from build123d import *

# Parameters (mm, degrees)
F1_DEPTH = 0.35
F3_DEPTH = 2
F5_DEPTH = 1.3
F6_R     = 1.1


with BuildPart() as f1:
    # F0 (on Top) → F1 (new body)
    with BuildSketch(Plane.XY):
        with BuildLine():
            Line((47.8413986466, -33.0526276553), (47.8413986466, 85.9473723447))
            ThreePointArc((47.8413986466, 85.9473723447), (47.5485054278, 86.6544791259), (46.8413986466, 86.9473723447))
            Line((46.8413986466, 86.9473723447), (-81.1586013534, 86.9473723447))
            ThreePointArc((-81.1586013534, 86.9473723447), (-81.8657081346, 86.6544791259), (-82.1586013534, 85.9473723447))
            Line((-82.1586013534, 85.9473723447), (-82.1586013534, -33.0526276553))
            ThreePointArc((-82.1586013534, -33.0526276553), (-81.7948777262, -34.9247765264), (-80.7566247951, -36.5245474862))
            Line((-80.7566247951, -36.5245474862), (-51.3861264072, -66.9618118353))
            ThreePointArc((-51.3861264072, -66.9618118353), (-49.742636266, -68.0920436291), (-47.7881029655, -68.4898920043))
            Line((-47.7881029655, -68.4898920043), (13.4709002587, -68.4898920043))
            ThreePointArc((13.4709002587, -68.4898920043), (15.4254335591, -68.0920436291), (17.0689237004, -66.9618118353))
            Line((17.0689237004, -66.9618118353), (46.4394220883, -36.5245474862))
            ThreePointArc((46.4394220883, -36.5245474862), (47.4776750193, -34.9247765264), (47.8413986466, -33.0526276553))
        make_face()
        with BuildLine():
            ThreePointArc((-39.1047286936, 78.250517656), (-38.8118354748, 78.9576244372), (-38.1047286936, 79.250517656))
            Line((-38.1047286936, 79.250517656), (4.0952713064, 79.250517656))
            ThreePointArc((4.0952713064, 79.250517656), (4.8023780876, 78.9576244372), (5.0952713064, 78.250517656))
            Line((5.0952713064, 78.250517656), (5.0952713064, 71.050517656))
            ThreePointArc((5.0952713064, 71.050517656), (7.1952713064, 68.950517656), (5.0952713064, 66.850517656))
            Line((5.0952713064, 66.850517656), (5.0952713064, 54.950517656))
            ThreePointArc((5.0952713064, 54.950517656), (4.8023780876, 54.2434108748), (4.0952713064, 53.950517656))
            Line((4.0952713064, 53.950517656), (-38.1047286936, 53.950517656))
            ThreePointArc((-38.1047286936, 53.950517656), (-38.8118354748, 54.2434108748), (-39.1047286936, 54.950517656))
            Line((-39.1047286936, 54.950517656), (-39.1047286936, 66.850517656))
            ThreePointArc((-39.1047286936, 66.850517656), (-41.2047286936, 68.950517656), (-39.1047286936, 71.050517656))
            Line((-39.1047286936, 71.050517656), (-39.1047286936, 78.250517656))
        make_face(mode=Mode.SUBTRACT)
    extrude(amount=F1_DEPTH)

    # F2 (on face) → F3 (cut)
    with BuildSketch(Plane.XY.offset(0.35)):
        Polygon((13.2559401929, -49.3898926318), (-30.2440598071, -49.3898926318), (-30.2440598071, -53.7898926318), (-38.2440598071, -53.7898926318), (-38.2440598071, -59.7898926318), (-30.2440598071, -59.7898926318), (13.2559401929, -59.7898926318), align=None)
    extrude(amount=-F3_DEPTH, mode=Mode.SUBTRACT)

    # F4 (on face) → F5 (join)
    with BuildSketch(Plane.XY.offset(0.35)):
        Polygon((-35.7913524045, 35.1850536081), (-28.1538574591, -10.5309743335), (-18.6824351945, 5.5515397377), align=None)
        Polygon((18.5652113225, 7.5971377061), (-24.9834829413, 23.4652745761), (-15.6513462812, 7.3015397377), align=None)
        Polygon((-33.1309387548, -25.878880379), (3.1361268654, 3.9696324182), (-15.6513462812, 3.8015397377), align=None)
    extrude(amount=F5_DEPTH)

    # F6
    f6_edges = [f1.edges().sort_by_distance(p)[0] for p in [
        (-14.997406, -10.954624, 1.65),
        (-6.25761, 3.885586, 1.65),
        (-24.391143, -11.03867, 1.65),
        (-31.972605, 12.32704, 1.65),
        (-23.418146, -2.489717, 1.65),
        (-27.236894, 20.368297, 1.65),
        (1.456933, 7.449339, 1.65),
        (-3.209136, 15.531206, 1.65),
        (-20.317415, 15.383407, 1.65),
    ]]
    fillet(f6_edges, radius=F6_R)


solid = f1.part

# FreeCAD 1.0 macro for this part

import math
import FreeCAD as App
import Part
import Sketcher
Q = App.Units.Quantity


def edges_at(feature, points):
    """Names of the edges that pass closest to the given points."""
    edges = feature.Shape.Edges
    near = lambda p: min(range(len(edges)), key=lambda i: edges[i].distToShape(Part.Vertex(*p))[0])
    return sorted({f"Edge{near(p) + 1}" for p in points})

doc = App.newDocument("Part")
body = doc.addObject("PartDesign::Body", "Body")

# Sketch on XY plane
sketch1 = doc.addObject("Sketcher::SketchObject", "Sketch")
body.addObject(sketch1)
sketch1.AttachmentSupport = (doc.XY_Plane, [""])
sketch1.MapMode = "FlatFace"
sketch1.addGeometry(Part.LineSegment(App.Vector(47.8, -33.1, 0), App.Vector(47.8, 85.9, 0)), False)
sketch1.addGeometry(Part.ArcOfCircle(Part.Circle(App.Vector(46.8, 85.9, 0), App.Vector(0, 0, 1), 1), math.radians(0), math.radians(90)), False)
sketch1.addGeometry(Part.LineSegment(App.Vector(46.8, 86.9, 0), App.Vector(-81.2, 86.9, 0)), False)
sketch1.addGeometry(Part.ArcOfCircle(Part.Circle(App.Vector(-81.2, 85.9, 0), App.Vector(0, 0, 1), 1), math.radians(90), math.radians(180)), False)
sketch1.addGeometry(Part.LineSegment(App.Vector(-82.2, 85.9, 0), App.Vector(-82.2, -33.1, 0)), False)
sketch1.addGeometry(Part.ArcOfCircle(Part.Circle(App.Vector(-77.2, -33.1, 0), App.Vector(0, 0, 1), 5), math.radians(180), math.radians(224)), False)
sketch1.addGeometry(Part.LineSegment(App.Vector(-80.8, -36.5, 0), App.Vector(-51.4, -67, 0)), False)
sketch1.addGeometry(Part.ArcOfCircle(Part.Circle(App.Vector(-47.8, -63.5, 0), App.Vector(0, 0, 1), 5), math.radians(-136), math.radians(-90)), False)
sketch1.addGeometry(Part.LineSegment(App.Vector(-47.8, -68.5, 0), App.Vector(13.5, -68.5, 0)), False)
sketch1.addGeometry(Part.ArcOfCircle(Part.Circle(App.Vector(13.5, -63.5, 0), App.Vector(0, 0, 1), 5), math.radians(-90), math.radians(-44)), False)
sketch1.addGeometry(Part.LineSegment(App.Vector(17.1, -67, 0), App.Vector(46.4, -36.5, 0)), False)
sketch1.addGeometry(Part.ArcOfCircle(Part.Circle(App.Vector(42.8, -33.1, 0), App.Vector(0, 0, 1), 5), math.radians(-44), math.radians(0)), False)
sketch1.addGeometry(Part.LineSegment(App.Vector(-39.1, 71.1, 0), App.Vector(-39.1, 78.3, 0)), False)
sketch1.addGeometry(Part.ArcOfCircle(Part.Circle(App.Vector(-38.1, 78.3, 0), App.Vector(0, 0, 1), 1), math.radians(90), math.radians(180)), False)
sketch1.addGeometry(Part.LineSegment(App.Vector(-38.1, 79.3, 0), App.Vector(4.1, 79.3, 0)), False)
sketch1.addGeometry(Part.ArcOfCircle(Part.Circle(App.Vector(4.1, 78.3, 0), App.Vector(0, 0, 1), 1), math.radians(0), math.radians(90)), False)
sketch1.addGeometry(Part.LineSegment(App.Vector(5.1, 78.3, 0), App.Vector(5.1, 71.1, 0)), False)
sketch1.addGeometry(Part.ArcOfCircle(Part.Circle(App.Vector(5.1, 69, 0), App.Vector(0, 0, 1), 2.1), math.radians(-90), math.radians(90)), False)
sketch1.addGeometry(Part.LineSegment(App.Vector(5.1, 66.9, 0), App.Vector(5.1, 55, 0)), False)
sketch1.addGeometry(Part.ArcOfCircle(Part.Circle(App.Vector(4.1, 55, 0), App.Vector(0, 0, 1), 1), math.radians(-90), math.radians(0)), False)
sketch1.addGeometry(Part.LineSegment(App.Vector(4.1, 54, 0), App.Vector(-38.1, 54, 0)), False)
sketch1.addGeometry(Part.ArcOfCircle(Part.Circle(App.Vector(-38.1, 55, 0), App.Vector(0, 0, 1), 1), math.radians(180), math.radians(270)), False)
sketch1.addGeometry(Part.LineSegment(App.Vector(-39.1, 55, 0), App.Vector(-39.1, 66.9, 0)), False)
sketch1.addGeometry(Part.ArcOfCircle(Part.Circle(App.Vector(-39.1, 69, 0), App.Vector(0, 0, 1), 2.1), math.radians(90), math.radians(270)), False)
sketch1.addConstraint(Sketcher.Constraint("Tangent", 0, 2, 1, 1))
sketch1.addConstraint(Sketcher.Constraint("Tangent", 1, 2, 2, 1))
sketch1.addConstraint(Sketcher.Constraint("Tangent", 2, 2, 3, 1))
sketch1.addConstraint(Sketcher.Constraint("Tangent", 3, 2, 4, 1))
sketch1.addConstraint(Sketcher.Constraint("Tangent", 4, 2, 5, 1))
sketch1.addConstraint(Sketcher.Constraint("Tangent", 5, 2, 6, 1))
sketch1.addConstraint(Sketcher.Constraint("Tangent", 6, 2, 7, 1))
sketch1.addConstraint(Sketcher.Constraint("Tangent", 7, 2, 8, 1))
sketch1.addConstraint(Sketcher.Constraint("Tangent", 8, 2, 9, 1))
sketch1.addConstraint(Sketcher.Constraint("Tangent", 9, 2, 10, 1))
sketch1.addConstraint(Sketcher.Constraint("Tangent", 10, 2, 11, 1))
sketch1.addConstraint(Sketcher.Constraint("Tangent", 11, 2, 0, 1))
sketch1.addConstraint(Sketcher.Constraint("Tangent", 12, 2, 13, 2))
sketch1.addConstraint(Sketcher.Constraint("Tangent", 13, 1, 14, 1))
sketch1.addConstraint(Sketcher.Constraint("Tangent", 14, 2, 15, 2))
sketch1.addConstraint(Sketcher.Constraint("Tangent", 15, 1, 16, 1))
sketch1.addConstraint(Sketcher.Constraint("Coincident", 16, 2, 17, 2))
sketch1.addConstraint(Sketcher.Constraint("Coincident", 17, 1, 18, 1))
sketch1.addConstraint(Sketcher.Constraint("Tangent", 18, 2, 19, 2))
sketch1.addConstraint(Sketcher.Constraint("Tangent", 19, 1, 20, 1))
sketch1.addConstraint(Sketcher.Constraint("Tangent", 20, 2, 21, 2))
sketch1.addConstraint(Sketcher.Constraint("Tangent", 21, 1, 22, 1))
sketch1.addConstraint(Sketcher.Constraint("Coincident", 22, 2, 23, 2))
sketch1.addConstraint(Sketcher.Constraint("Coincident", 23, 1, 12, 1))
sketch1.addConstraint(Sketcher.Constraint("Vertical", 0))
sketch1.addConstraint(Sketcher.Constraint("Horizontal", 2))
sketch1.addConstraint(Sketcher.Constraint("Vertical", 4))
sketch1.addConstraint(Sketcher.Constraint("Horizontal", 8))
sketch1.addConstraint(Sketcher.Constraint("Vertical", 12))
sketch1.addConstraint(Sketcher.Constraint("Horizontal", 14))
sketch1.addConstraint(Sketcher.Constraint("Vertical", 16))
sketch1.addConstraint(Sketcher.Constraint("Vertical", 18))
sketch1.addConstraint(Sketcher.Constraint("Horizontal", 20))
sketch1.addConstraint(Sketcher.Constraint("Vertical", 22))
sketch1.addConstraint(Sketcher.Constraint("Equal", 1, 3))
sketch1.addConstraint(Sketcher.Constraint("Equal", 5, 7))
sketch1.addConstraint(Sketcher.Constraint("Equal", 7, 9))
sketch1.addConstraint(Sketcher.Constraint("Equal", 9, 11))
sketch1.addConstraint(Sketcher.Constraint("Equal", 3, 13))
sketch1.addConstraint(Sketcher.Constraint("Equal", 13, 15))
sketch1.addConstraint(Sketcher.Constraint("Equal", 15, 19))
sketch1.addConstraint(Sketcher.Constraint("Equal", 19, 21))
sketch1.addConstraint(Sketcher.Constraint("Equal", 17, 23))
sketch1.addConstraint(Sketcher.Constraint("Horizontal", 5, 3, 11, 3))
sketch1.addConstraint(Sketcher.Constraint("Horizontal", 17, 3, 23, 3))
sketch1.addConstraint(Sketcher.Constraint("Horizontal", 6, 2, 9, 2))
sketch1.addConstraint(Sketcher.Constraint("Vertical", 15, 3, 19, 3))
sketch1.addConstraint(Sketcher.Constraint("Vertical", 13, 3, 21, 3))
sketch1.addConstraint(Sketcher.Constraint("Vertical", 23, 3, 12, 2))
sketch1.addConstraint(Sketcher.Constraint("Vertical", 17, 3, 15, 1))
sketch1.addConstraint(Sketcher.Constraint("Radius", 1, Q("1 mm")))
sketch1.addConstraint(Sketcher.Constraint("Radius", 5, Q("5 mm")))
sketch1.addConstraint(Sketcher.Constraint("Radius", 17, Q("2.1 mm")))
sketch1.addConstraint(Sketcher.Constraint("DistanceX", 2, 2, 2, 1, Q("128 mm")))
sketch1.addConstraint(Sketcher.Constraint("DistanceY", 0, 1, 0, 2, Q("119 mm")))
sketch1.addConstraint(Sketcher.Constraint("DistanceX", 14, 1, 14, 2, Q("42.2 mm")))
sketch1.addConstraint(Sketcher.Constraint("DistanceY", 12, 1, 12, 2, Q("7.2 mm")))
sketch1.addConstraint(Sketcher.Constraint("DistanceY", 18, 2, 18, 1, Q("11.9 mm")))
sketch1.addConstraint(Sketcher.Constraint("Distance", 6, Q("42.297201 mm")))
sketch1.addConstraint(Sketcher.Constraint("DistanceX", -1, 1, 1, 3, Q("46.841399 mm")))
sketch1.addConstraint(Sketcher.Constraint("DistanceX", -1, 1, 9, 3, Q("13.4709 mm")))
sketch1.addConstraint(Sketcher.Constraint("DistanceX", 13, 3, -1, 1, Q("38.104729 mm")))
sketch1.addConstraint(Sketcher.Constraint("DistanceY", 6, 2, -1, 1, Q("66.961812 mm")))
sketch1.addConstraint(Sketcher.Constraint("DistanceY", 7, 3, 13, 3, Q("141.74041 mm")))
pad1 = doc.addObject("PartDesign::Pad", "Pad")
body.addObject(pad1)
pad1.Profile = sketch1
pad1.Length = 0.35

# Sketch on XY plane
sketch2 = doc.addObject("Sketcher::SketchObject", "Sketch001")
body.addObject(sketch2)
sketch2.AttachmentSupport = (doc.XY_Plane, [""])
sketch2.MapMode = "FlatFace"
sketch2.AttachmentOffset = App.Placement(App.Vector(0, 0, 0.35), App.Rotation())
sketch2.addGeometry(Part.LineSegment(App.Vector(13.3, -49.4, 0), App.Vector(-30.2, -49.4, 0)), False)
sketch2.addGeometry(Part.LineSegment(App.Vector(-30.2, -49.4, 0), App.Vector(-30.2, -53.8, 0)), False)
sketch2.addGeometry(Part.LineSegment(App.Vector(-30.2, -53.8, 0), App.Vector(-38.2, -53.8, 0)), False)
sketch2.addGeometry(Part.LineSegment(App.Vector(-38.2, -53.8, 0), App.Vector(-38.2, -59.8, 0)), False)
sketch2.addGeometry(Part.LineSegment(App.Vector(-38.2, -59.8, 0), App.Vector(13.3, -59.8, 0)), False)
sketch2.addGeometry(Part.LineSegment(App.Vector(13.3, -59.8, 0), App.Vector(13.3, -49.4, 0)), False)
sketch2.addConstraint(Sketcher.Constraint("Coincident", 0, 2, 1, 1))
sketch2.addConstraint(Sketcher.Constraint("Coincident", 1, 2, 2, 1))
sketch2.addConstraint(Sketcher.Constraint("Coincident", 2, 2, 3, 1))
sketch2.addConstraint(Sketcher.Constraint("Coincident", 3, 2, 4, 1))
sketch2.addConstraint(Sketcher.Constraint("Coincident", 4, 2, 5, 1))
sketch2.addConstraint(Sketcher.Constraint("Coincident", 5, 2, 0, 1))
sketch2.addConstraint(Sketcher.Constraint("Horizontal", 0))
sketch2.addConstraint(Sketcher.Constraint("Vertical", 1))
sketch2.addConstraint(Sketcher.Constraint("Horizontal", 2))
sketch2.addConstraint(Sketcher.Constraint("Vertical", 3))
sketch2.addConstraint(Sketcher.Constraint("Horizontal", 4))
sketch2.addConstraint(Sketcher.Constraint("Vertical", 5))
sketch2.addConstraint(Sketcher.Constraint("DistanceX", 2, 2, 2, 1, Q("8 mm")))
sketch2.addConstraint(Sketcher.Constraint("DistanceY", 3, 2, 3, 1, Q("6 mm")))
sketch2.addConstraint(Sketcher.Constraint("DistanceX", 0, 2, 0, 1, Q("43.5 mm")))
sketch2.addConstraint(Sketcher.Constraint("DistanceY", 1, 2, 1, 1, Q("4.4 mm")))
sketch2.addConstraint(Sketcher.Constraint("DistanceX", 0, 2, -1, 1, Q("30.24406 mm")))
sketch2.addConstraint(Sketcher.Constraint("DistanceY", 0, 2, -1, 1, Q("49.389893 mm")))
pocket1 = doc.addObject("PartDesign::Pocket", "Pocket")
body.addObject(pocket1)
pocket1.Profile = sketch2
pocket1.Length = 2

# Sketch on XY plane
sketch3 = doc.addObject("Sketcher::SketchObject", "Sketch002")
body.addObject(sketch3)
sketch3.AttachmentSupport = (doc.XY_Plane, [""])
sketch3.MapMode = "FlatFace"
sketch3.AttachmentOffset = App.Placement(App.Vector(0, 0, 0.35), App.Rotation())
sketch3.addGeometry(Part.LineSegment(App.Vector(-36, 35, 0), App.Vector(-28, -11, 0)), False)
sketch3.addGeometry(Part.LineSegment(App.Vector(-28, -11, 0), App.Vector(-19, 6, 0)), False)
sketch3.addGeometry(Part.LineSegment(App.Vector(-19, 6, 0), App.Vector(-36, 35, 0)), False)
sketch3.addGeometry(Part.LineSegment(App.Vector(19, 8, 0), App.Vector(-25, 23, 0)), False)
sketch3.addGeometry(Part.LineSegment(App.Vector(-25, 23, 0), App.Vector(-16, 7, 0)), False)
sketch3.addGeometry(Part.LineSegment(App.Vector(-16, 7, 0), App.Vector(19, 8, 0)), False)
sketch3.addGeometry(Part.LineSegment(App.Vector(-33, -26, 0), App.Vector(3, 4, 0)), False)
sketch3.addGeometry(Part.LineSegment(App.Vector(3, 4, 0), App.Vector(-16, 4, 0)), False)
sketch3.addGeometry(Part.LineSegment(App.Vector(-16, 4, 0), App.Vector(-33, -26, 0)), False)
sketch3.addConstraint(Sketcher.Constraint("Coincident", 0, 2, 1, 1))
sketch3.addConstraint(Sketcher.Constraint("Coincident", 1, 2, 2, 1))
sketch3.addConstraint(Sketcher.Constraint("Coincident", 2, 2, 0, 1))
sketch3.addConstraint(Sketcher.Constraint("Coincident", 3, 2, 4, 1))
sketch3.addConstraint(Sketcher.Constraint("Coincident", 4, 2, 5, 1))
sketch3.addConstraint(Sketcher.Constraint("Coincident", 5, 2, 3, 1))
sketch3.addConstraint(Sketcher.Constraint("Coincident", 6, 2, 7, 1))
sketch3.addConstraint(Sketcher.Constraint("Coincident", 7, 2, 8, 1))
sketch3.addConstraint(Sketcher.Constraint("Coincident", 8, 2, 6, 1))
sketch3.addConstraint(Sketcher.Constraint("Parallel", 2, 4))
sketch3.addConstraint(Sketcher.Constraint("Parallel", 1, 8))
sketch3.addConstraint(Sketcher.Constraint("Vertical", 4, 2, 7, 2))
sketch3.addConstraint(Sketcher.Constraint("Equal", 0, 3))
sketch3.addConstraint(Sketcher.Constraint("Equal", 1, 4))
sketch3.addConstraint(Sketcher.Constraint("Equal", 2, 5))
sketch3.addConstraint(Sketcher.Constraint("Angle", 2, Q("120 deg")))
sketch3.addConstraint(Sketcher.Constraint("DistanceY", 7, 2, 4, 2, Q("3.5 mm")))
sketch3.addConstraint(Sketcher.Constraint("DistanceY", 1, 2, 4, 2, Q("1.75 mm")))
sketch3.addConstraint(Sketcher.Constraint("Distance", 8, Q("34.445079 mm")))
sketch3.addConstraint(Sketcher.Constraint("DistanceY", -1, 1, 1, 2, Q("5.55154 mm")))
sketch3.addConstraint(Sketcher.Constraint("DistanceX", -1, 1, 5, 2, Q("18.565211 mm")))
sketch3.addConstraint(Sketcher.Constraint("DistanceX", 8, 2, -1, 1, Q("33.130939 mm")))
sketch3.addConstraint(Sketcher.Constraint("DistanceY", 8, 2, -1, 1, Q("25.87888 mm")))
sketch3.addConstraint(Sketcher.Constraint("DistanceX", 2, 2, 3, 2, Q("10.807869 mm")))
sketch3.addConstraint(Sketcher.Constraint("DistanceY", 3, 2, 2, 2, Q("11.719779 mm")))
sketch3.addConstraint(Sketcher.Constraint("DistanceX", 3, 2, 6, 2, Q("28.11961 mm")))
sketch3.addConstraint(Sketcher.Constraint("Distance", 6, Q("46.970563 mm")))
pad2 = doc.addObject("PartDesign::Pad", "Pad001")
body.addObject(pad2)
pad2.Profile = sketch3
pad2.Length = 1.3
doc.recompute()

fillet = doc.addObject("PartDesign::Fillet", "Fillet")
body.addObject(fillet)
fillet.Base = (pad2, edges_at(pad2, [
    (-14.997, -10.955, 1.65),
    (-6.258, 3.886, 1.65),
    (-24.391, -11.039, 1.65),
    (-31.973, 12.327, 1.65),
    (-23.418, -2.49, 1.65),
    (-27.237, 20.368, 1.65),
    (1.457, 7.449, 1.65),
    (-3.209, 15.531, 1.65),
    (-20.317, 15.383, 1.65),
]))
fillet.Radius = 1.1

doc.recompute()
